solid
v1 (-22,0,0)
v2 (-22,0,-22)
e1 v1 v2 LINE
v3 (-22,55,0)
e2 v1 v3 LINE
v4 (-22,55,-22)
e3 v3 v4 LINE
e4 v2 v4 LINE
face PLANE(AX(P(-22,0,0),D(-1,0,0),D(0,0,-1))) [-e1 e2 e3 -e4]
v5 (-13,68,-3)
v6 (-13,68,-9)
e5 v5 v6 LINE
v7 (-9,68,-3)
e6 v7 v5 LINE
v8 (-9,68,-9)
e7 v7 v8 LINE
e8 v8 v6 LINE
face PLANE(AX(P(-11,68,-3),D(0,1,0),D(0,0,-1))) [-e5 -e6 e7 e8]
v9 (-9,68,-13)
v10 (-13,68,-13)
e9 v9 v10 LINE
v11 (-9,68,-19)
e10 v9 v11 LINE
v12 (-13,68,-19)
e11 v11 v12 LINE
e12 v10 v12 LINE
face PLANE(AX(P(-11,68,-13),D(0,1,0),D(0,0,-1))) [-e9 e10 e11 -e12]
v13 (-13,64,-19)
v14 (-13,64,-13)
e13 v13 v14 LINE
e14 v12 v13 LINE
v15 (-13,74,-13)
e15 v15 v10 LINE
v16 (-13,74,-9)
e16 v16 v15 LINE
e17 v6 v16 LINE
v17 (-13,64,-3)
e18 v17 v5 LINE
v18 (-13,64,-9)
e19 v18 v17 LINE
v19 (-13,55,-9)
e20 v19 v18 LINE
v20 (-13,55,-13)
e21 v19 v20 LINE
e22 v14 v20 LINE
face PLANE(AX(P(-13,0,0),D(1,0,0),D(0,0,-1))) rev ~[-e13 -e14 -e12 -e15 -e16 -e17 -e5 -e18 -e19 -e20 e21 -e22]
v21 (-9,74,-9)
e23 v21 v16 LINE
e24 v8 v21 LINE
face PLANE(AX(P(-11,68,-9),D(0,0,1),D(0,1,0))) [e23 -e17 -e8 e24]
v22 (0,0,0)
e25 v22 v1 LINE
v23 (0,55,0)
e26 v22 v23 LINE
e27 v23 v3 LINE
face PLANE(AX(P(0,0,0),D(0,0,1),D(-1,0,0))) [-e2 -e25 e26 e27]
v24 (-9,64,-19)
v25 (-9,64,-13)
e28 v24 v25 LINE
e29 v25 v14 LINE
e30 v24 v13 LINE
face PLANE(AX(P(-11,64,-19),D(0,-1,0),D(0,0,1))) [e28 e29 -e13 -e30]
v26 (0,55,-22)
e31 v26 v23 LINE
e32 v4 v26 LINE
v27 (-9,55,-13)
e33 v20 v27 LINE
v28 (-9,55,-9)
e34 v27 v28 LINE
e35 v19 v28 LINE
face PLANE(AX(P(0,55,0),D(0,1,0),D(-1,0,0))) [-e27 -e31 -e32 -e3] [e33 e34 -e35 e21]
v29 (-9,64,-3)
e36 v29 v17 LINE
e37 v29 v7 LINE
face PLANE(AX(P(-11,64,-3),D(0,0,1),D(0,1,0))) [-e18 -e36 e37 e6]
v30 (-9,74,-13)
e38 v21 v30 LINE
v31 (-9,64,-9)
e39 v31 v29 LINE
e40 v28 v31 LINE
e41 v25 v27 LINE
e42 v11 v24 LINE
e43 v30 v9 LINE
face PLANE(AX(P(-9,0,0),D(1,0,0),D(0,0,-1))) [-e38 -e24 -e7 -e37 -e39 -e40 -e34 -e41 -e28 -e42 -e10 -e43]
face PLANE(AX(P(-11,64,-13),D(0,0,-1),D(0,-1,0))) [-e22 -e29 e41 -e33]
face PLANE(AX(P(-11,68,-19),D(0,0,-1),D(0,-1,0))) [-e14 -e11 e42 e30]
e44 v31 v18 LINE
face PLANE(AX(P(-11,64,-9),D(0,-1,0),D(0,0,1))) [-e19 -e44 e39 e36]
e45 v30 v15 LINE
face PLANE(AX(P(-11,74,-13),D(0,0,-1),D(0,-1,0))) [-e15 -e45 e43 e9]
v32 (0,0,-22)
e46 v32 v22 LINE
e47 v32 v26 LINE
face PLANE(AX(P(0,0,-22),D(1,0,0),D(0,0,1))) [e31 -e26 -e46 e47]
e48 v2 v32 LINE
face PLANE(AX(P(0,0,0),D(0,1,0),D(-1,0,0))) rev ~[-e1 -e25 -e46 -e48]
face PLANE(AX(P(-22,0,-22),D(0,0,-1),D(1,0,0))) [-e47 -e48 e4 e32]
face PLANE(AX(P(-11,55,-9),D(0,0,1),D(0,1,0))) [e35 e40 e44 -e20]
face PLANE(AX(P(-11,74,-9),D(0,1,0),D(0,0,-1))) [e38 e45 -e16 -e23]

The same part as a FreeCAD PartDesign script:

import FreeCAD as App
import Part
import Sketcher


def add_polygon(sketch, points):
    """Adds a closed chain of lines whose ends are joined by coincident constraints."""
    first, n = sketch.GeometryCount, len(points)
    for a, b in zip(points, points[1:] + points[:1]):
        sketch.addGeometry(Part.LineSegment(App.Vector(*a, 0), App.Vector(*b, 0)), False)
    for i in range(n):
        sketch.addConstraint(Sketcher.Constraint("Coincident", first + i, 2, first + (i + 1) % n, 1))

doc = App.newDocument("Part")
params = doc.addObject("Spreadsheet::Sheet", "Params")
for row, (alias, value) in enumerate([
    ("sketch1_width", "22 mm"),
    ("pad1_length", "55 mm"),
    ("sketch2_width", "9 mm"),
    ("sketch2_width2", "4 mm"),
    ("sketch2_width3", "6 mm"),
    ("pad2_length", "4 mm"),
], start=1):
    params.set(f"A{row}", alias)
    params.set(f"B{row}", "=" + value)
    params.setAlias(f"B{row}", alias)

body = doc.addObject("PartDesign::Body", "Body")

# Sketch on XZ plane
sketch1 = body.newObject("Sketcher::SketchObject", "Sketch")
sketch1.AttachmentSupport = (doc.getObject("XZ_Plane"), [""])
sketch1.MapMode = "FlatFace"
add_polygon(sketch1, [(-22, 0), (0, 0), (0, -22), (-22, -22)])  # lines 0-3
sketch1.addConstraint([
    Sketcher.Constraint("Horizontal", 0),
    Sketcher.Constraint("Vertical", 1),
    Sketcher.Constraint("Horizontal", 2),
    Sketcher.Constraint("Vertical", 3),
    Sketcher.Constraint("Coincident", 0, 2, -1, 1),
    Sketcher.Constraint("Equal", 2, 1),
    Sketcher.Constraint("DistanceX", 0, 1, 0, 2, 22.0),
])
sketch1.setExpression("Constraints[10]", "Params.sketch1_width")
pad1 = body.newObject("PartDesign::Pad", "Pad")
pad1.Profile = sketch1
pad1.setExpression("Length", "Params.pad1_length")
pad1.Reversed = True

# Sketch on YZ plane
sketch2 = body.newObject("Sketcher::SketchObject", "Sketch001")
sketch2.AttachmentSupport = (doc.getObject("YZ_Plane"), [""])
sketch2.MapMode = "FlatFace"
sketch2.AttachmentOffset = App.Placement(App.Vector(0, 0, -11), App.Rotation())
add_polygon(sketch2, [(64, -9), (55, -9), (55, -13), (64, -13), (64, -19), (68, -19), (68, -13), (74, -13), (74, -9), (68, -9), (68, -3), (64, -3)])  # lines 0-11
sketch2.addConstraint([
    Sketcher.Constraint("Horizontal", 0),
    Sketcher.Constraint("Vertical", 1),
    Sketcher.Constraint("Horizontal", 2),
    Sketcher.Constraint("Vertical", 3),
    Sketcher.Constraint("Horizontal", 4),
    Sketcher.Constraint("Vertical", 5),
    Sketcher.Constraint("Horizontal", 6),
    Sketcher.Constraint("Vertical", 7),
    Sketcher.Constraint("Horizontal", 8),
    Sketcher.Constraint("Vertical", 9),
    Sketcher.Constraint("Horizontal", 10),
    Sketcher.Constraint("Vertical", 11),
    Sketcher.Constraint("Horizontal", 2, 2, 5, 2),
    Sketcher.Constraint("Horizontal", 0, 2, 7, 2),
    Sketcher.Constraint("Vertical", 5, 2, 8, 2),
    Sketcher.Constraint("Vertical", 3, 2, 10, 2),
    Sketcher.Constraint("Equal", 10, 1),
    Sketcher.Constraint("Equal", 8, 3),
    Sketcher.Constraint("Equal", 5, 9),
    Sketcher.Constraint("DistanceX", 0, 2, 0, 1, 9.0),
    Sketcher.Constraint("DistanceX", 4, 1, 4, 2, 4.0),
    Sketcher.Constraint("DistanceX", 6, 1, 6, 2, 6.0),
    Sketcher.Constraint("DistanceY", 0, 2, -1, 1, 9.0),
    Sketcher.Constraint("DistanceX", -1, 1, 0, 2, 55.0),
])
sketch2.setExpression("Constraints[31]", "Params.sketch2_width")
sketch2.setExpression("Constraints[32]", "Params.sketch2_width2")
sketch2.setExpression("Constraints[33]", "Params.sketch2_width3")
pad2 = body.newObject("PartDesign::Pad", "Pad001")
pad2.Profile = sketch2
pad2.setExpression("Length", "Params.pad2_length")
pad2.Midplane = True

doc.recompute()
